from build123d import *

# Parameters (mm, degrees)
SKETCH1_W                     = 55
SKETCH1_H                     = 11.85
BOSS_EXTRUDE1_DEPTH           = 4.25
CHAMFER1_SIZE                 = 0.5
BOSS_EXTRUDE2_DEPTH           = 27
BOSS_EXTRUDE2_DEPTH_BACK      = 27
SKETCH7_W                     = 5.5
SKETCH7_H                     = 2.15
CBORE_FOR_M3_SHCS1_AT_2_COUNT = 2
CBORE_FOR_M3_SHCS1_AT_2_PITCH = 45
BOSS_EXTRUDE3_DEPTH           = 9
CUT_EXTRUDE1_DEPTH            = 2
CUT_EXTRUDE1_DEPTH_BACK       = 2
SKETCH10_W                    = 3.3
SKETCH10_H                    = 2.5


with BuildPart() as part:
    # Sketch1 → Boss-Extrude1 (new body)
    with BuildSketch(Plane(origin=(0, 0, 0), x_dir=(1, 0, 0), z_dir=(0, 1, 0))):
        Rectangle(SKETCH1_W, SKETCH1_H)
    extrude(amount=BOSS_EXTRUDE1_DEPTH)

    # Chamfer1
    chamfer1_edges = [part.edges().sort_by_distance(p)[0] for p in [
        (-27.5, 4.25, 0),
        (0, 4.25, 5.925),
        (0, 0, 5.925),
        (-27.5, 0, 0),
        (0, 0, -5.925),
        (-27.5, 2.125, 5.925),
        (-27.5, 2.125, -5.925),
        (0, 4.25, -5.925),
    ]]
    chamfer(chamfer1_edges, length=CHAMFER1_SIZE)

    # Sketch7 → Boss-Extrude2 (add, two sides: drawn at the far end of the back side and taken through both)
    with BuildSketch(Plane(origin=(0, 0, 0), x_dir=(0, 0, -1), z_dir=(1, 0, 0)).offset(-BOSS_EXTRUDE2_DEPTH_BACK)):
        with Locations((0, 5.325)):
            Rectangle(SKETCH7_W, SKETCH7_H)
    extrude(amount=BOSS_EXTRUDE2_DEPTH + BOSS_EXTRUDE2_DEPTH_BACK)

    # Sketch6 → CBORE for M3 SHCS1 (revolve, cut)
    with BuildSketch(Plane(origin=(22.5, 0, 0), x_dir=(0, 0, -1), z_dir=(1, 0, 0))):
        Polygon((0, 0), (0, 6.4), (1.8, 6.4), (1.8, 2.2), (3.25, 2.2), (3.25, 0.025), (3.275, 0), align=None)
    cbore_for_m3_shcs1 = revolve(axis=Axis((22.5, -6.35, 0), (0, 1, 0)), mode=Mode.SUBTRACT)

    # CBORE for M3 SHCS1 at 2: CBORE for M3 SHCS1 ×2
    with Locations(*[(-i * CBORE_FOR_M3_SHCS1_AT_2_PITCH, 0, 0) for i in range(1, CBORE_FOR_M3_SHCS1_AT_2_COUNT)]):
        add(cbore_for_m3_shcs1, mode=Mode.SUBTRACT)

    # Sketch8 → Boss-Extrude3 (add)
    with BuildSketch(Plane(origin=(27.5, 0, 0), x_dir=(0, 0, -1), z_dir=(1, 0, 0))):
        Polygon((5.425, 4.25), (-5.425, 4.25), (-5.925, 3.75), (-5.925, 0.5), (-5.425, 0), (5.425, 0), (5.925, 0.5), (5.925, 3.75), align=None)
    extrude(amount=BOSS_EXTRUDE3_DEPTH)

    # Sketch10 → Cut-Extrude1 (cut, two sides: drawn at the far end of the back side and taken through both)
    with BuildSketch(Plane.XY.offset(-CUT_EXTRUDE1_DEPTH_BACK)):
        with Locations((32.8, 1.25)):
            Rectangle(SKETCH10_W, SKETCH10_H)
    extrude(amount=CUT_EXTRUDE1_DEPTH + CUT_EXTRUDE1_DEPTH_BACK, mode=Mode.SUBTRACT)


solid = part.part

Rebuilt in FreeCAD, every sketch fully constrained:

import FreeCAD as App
import Part
import Sketcher

V = App.Vector
Q = App.Units.Quantity


def edges_at(feature, points):
    """Names of the edges that pass closest to the given points."""
    edges = feature.Shape.Edges
    near = lambda p: min(range(len(edges)), key=lambda i: edges[i].distToShape(Part.Vertex(*p))[0])
    return sorted({f"Edge{near(p) + 1}" for p in points})


def add_polygon(sketch, points):
    """Adds a closed chain of lines whose ends are joined by coincident constraints."""
    first, n = sketch.GeometryCount, len(points)
    for a, b in zip(points, points[1:] + points[:1]):
        sketch.addGeometry(Part.LineSegment(App.Vector(*a, 0), App.Vector(*b, 0)), False)
    for i in range(n):
        sketch.addConstraint(Sketcher.Constraint("Coincident", first + i, 2, first + (i + 1) % n, 1))

doc = App.newDocument("Part")
body = doc.addObject("PartDesign::Body", "Body")

sketch1 = body.newObject("Sketcher::SketchObject", "Sketch")
sketch1.AttachmentSupport = (doc.getObject("XZ_Plane"), [""])
sketch1.MapMode = "FlatFace"
add_polygon(sketch1, [(-28, -6), (-28, 6), (28, 6), (28, -6)])
sketch1.addConstraint(Sketcher.Constraint("Vertical", 0))
sketch1.addConstraint(Sketcher.Constraint("Horizontal", 1))
sketch1.addConstraint(Sketcher.Constraint("Vertical", 2))
sketch1.addConstraint(Sketcher.Constraint("Horizontal", 3))
sketch1.addConstraint(Sketcher.Constraint("Symmetric", 0, 2, 2, 2, -1, 1))
sketch1.addConstraint(Sketcher.Constraint("DistanceX", 1, 1, 1, 2, Q("55 mm")))
sketch1.addConstraint(Sketcher.Constraint("DistanceY", 0, 1, 0, 2, Q("11.85 mm")))
pad1 = body.newObject("PartDesign::Pad", "Pad")
pad1.Profile = sketch1
pad1.Length = 4.25
pad1.Reversed = True
doc.recompute()

chamfer = body.newObject("PartDesign::Chamfer", "Chamfer")
chamfer.Base = (pad1, edges_at(pad1, [
    (-27.5, 4.25, 0),
    (0, 4.25, 5.925),
    (0, 0, 5.925),
    (-27.5, 0, 0),
    (0, 0, -5.925),
    (-27.5, 2.125, 5.925),
    (-27.5, 2.125, -5.925),
    (0, 4.25, -5.925),
]))
chamfer.Size = 0.5

sketch2 = body.newObject("Sketcher::SketchObject", "Sketch001")
sketch2.AttachmentSupport = (doc.getObject("YZ_Plane"), [""])
sketch2.MapMode = "FlatFace"
add_polygon(sketch2, [(6.4, 2.8), (4.2, 2.8), (4.2, -2.8), (6.4, -2.8)])
sketch2.addConstraint(Sketcher.Constraint("Horizontal", 0))
sketch2.addConstraint(Sketcher.Constraint("Vertical", 1))
sketch2.addConstraint(Sketcher.Constraint("Horizontal", 2))
sketch2.addConstraint(Sketcher.Constraint("Vertical", 3))
sketch2.addConstraint(Sketcher.Constraint("DistanceY", 1, 2, 1, 1, Q("5.5 mm")))
sketch2.addConstraint(Sketcher.Constraint("DistanceX", 0, 2, 0, 1, Q("2.15 mm")))
sketch2.addConstraint(Sketcher.Constraint("DistanceX", -1, 1, 2, 2, Q("6.4 mm")))
sketch2.addConstraint(Sketcher.Constraint("DistanceY", -1, 1, 0, 2, Q("2.75 mm")))
pad2 = body.newObject("PartDesign::Pad", "Pad001")
pad2.Profile = sketch2
pad2.Type = "TwoLengths"
pad2.Length = 27
pad2.Length2 = 27

sketch3 = body.newObject("Sketcher::SketchObject", "Sketch002")
sketch3.AttachmentSupport = (doc.getObject("YZ_Plane"), [""])
sketch3.MapMode = "FlatFace"
sketch3.AttachmentOffset = App.Placement(V(0, 0, 22.5), App.Rotation())
add_polygon(sketch3, [(6.4, 0), (0, 0), (0, -3.275), (0.025, -3.25), (2.2, -3.25), (2.2, -1.8), (6.4, -1.8)])
sketch3.addConstraint(Sketcher.Constraint("Horizontal", 0))
sketch3.addConstraint(Sketcher.Constraint("Vertical", 1))
sketch3.addConstraint(Sketcher.Constraint("Horizontal", 3))
sketch3.addConstraint(Sketcher.Constraint("Vertical", 4))
sketch3.addConstraint(Sketcher.Constraint("Horizontal", 5))
sketch3.addConstraint(Sketcher.Constraint("Vertical", 6))
sketch3.addConstraint(Sketcher.Constraint("Coincident", 0, 2, -1, 1))
sketch3.addConstraint(Sketcher.Constraint("Angle", 2, Q("45 deg")))
sketch3.addConstraint(Sketcher.Constraint("DistanceX", 0, 2, 0, 1, Q("6.4 mm")))
sketch3.addConstraint(Sketcher.Constraint("DistanceX", 5, 1, 5, 2, Q("4.2 mm")))
sketch3.addConstraint(Sketcher.Constraint("DistanceY", 6, 1, 6, 2, Q("1.8 mm")))
sketch3.addConstraint(Sketcher.Constraint("DistanceY", 4, 1, 4, 2, Q("1.45 mm")))
sketch3.addConstraint(Sketcher.Constraint("DistanceX", 3, 1, 3, 2, Q("2.175 mm")))
groove = body.newObject("PartDesign::Groove", "Groove")
groove.Profile = sketch3
groove.ReferenceAxis = (sketch3, ["H_Axis"])
groove.Angle = 360
doc.recompute()

linearpattern = body.newObject("PartDesign::LinearPattern", "LinearPattern")
linearpattern.Originals = [groove]
linearpattern.Direction = (doc.getObject("X_Axis"), [""])
linearpattern.Mode = "offset"
linearpattern.Offset = 45
linearpattern.Occurrences = 2
linearpattern.Reversed = True
body.Tip = linearpattern

sketch4 = body.newObject("Sketcher::SketchObject", "Sketch003")
sketch4.AttachmentSupport = (doc.getObject("YZ_Plane"), [""])
sketch4.MapMode = "FlatFace"
sketch4.AttachmentOffset = App.Placement(V(0, 0, 27.5), App.Rotation())
add_polygon(sketch4, [(4.2, -5.4), (4.2, 5.4), (3.8, 5.9), (0.5, 5.9), (0, 5.4), (0, -5.4), (0.5, -5.9), (3.8, -5.9)])
sketch4.addConstraint(Sketcher.Constraint("Vertical", 0))
sketch4.addConstraint(Sketcher.Constraint("Horizontal", 2))
sketch4.addConstraint(Sketcher.Constraint("Vertical", 4))
sketch4.addConstraint(Sketcher.Constraint("Horizontal", 6))
sketch4.addConstraint(Sketcher.Constraint("Symmetric", 3, 2, 4, 2, -1, 1))
sketch4.addConstraint(Sketcher.Constraint("Symmetric", 2, 2, 5, 2, -1))
sketch4.addConstraint(Sketcher.Constraint("Perpendicular", 1, 3))
sketch4.addConstraint(Sketcher.Constraint("Perpendicular", 3, 5))
sketch4.addConstraint(Sketcher.Constraint("Perpendicular", 5, 7))
sketch4.addConstraint(Sketcher.Constraint("Horizontal", 0, 2, 3, 2))
sketch4.addConstraint(Sketcher.Constraint("Horizontal", 4, 2, 7, 2))
sketch4.addConstraint(Sketcher.Constraint("DistanceX", 2, 2, 2, 1, Q("3.25 mm")))
sketch4.addConstraint(Sketcher.Constraint("DistanceY", 0, 1, 0, 2, Q("10.85 mm")))
sketch4.addConstraint(Sketcher.Constraint("DistanceX", -1, 1, 2, 2, Q("0.5 mm")))
pad3 = body.newObject("PartDesign::Pad", "Pad002")
pad3.Profile = sketch4
pad3.Length = 9

sketch5 = body.newObject("Sketcher::SketchObject", "Sketch004")
sketch5.AttachmentSupport = (doc.getObject("XY_Plane"), [""])
sketch5.MapMode = "FlatFace"
add_polygon(sketch5, [(31.1, 2.5), (31.1, 0), (34.5, 0), (34.5, 2.5)])
sketch5.addConstraint(Sketcher.Constraint("Vertical", 0))
sketch5.addConstraint(Sketcher.Constraint("Horizontal", 1))
sketch5.addConstraint(Sketcher.Constraint("Vertical", 2))
sketch5.addConstraint(Sketcher.Constraint("Horizontal", 3))
sketch5.addConstraint(Sketcher.Constraint("PointOnObject", 0, 2, -1))
sketch5.addConstraint(Sketcher.Constraint("DistanceX", 1, 1, 1, 2, Q("3.3 mm")))
sketch5.addConstraint(Sketcher.Constraint("DistanceY", 0, 2, 0, 1, Q("2.5 mm")))
sketch5.addConstraint(Sketcher.Constraint("DistanceX", -1, 1, 0, 2, Q("31.15 mm")))
pocket1 = body.newObject("PartDesign::Pocket", "Pocket")
pocket1.Profile = sketch5
pocket1.Type = "TwoLengths"
pocket1.Length = 2
pocket1.Length2 = 2
pocket1.Reversed = True

doc.recompute()
